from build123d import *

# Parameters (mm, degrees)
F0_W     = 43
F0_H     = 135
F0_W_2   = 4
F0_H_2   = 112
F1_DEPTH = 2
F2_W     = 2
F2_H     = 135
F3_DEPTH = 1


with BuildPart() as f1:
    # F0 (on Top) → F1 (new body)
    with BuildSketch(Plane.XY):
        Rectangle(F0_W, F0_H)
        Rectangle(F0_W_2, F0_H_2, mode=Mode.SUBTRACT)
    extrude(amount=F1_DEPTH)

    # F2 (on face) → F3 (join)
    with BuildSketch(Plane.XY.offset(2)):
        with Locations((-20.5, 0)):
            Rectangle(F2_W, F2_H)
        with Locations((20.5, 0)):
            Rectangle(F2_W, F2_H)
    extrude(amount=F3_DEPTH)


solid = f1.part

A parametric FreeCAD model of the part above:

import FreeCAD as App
import Part
import Sketcher
Q = App.Units.Quantity


def add_polygon(sketch, points):
    """Adds a closed chain of lines whose ends are joined by coincident constraints."""
    first, n = sketch.GeometryCount, len(points)
    for a, b in zip(points, points[1:] + points[:1]):
        sketch.addGeometry(Part.LineSegment(App.Vector(*a, 0), App.Vector(*b, 0)), False)
    for i in range(n):
        sketch.addConstraint(Sketcher.Constraint("Coincident", first + i, 2, first + (i + 1) % n, 1))

doc = App.newDocument("Part")
body = doc.addObject("PartDesign::Body", "Body")

# Sketch on XY plane
sketch1 = body.newObject("Sketcher::SketchObject", "Sketch")
sketch1.AttachmentSupport = (doc.getObject("XY_Plane"), [""])
sketch1.MapMode = "FlatFace"
add_polygon(sketch1, [(-21.5, 67.5), (-21.5, -67.5), (21.5, -67.5), (21.5, 67.5)])  # lines 0-3
add_polygon(sketch1, [(2, -56), (-2, -56), (-2, 56), (2, 56)])  # lines 4-7
sketch1.addConstraint([
    Sketcher.Constraint("Vertical", 0),
    Sketcher.Constraint("Horizontal", 1),
    Sketcher.Constraint("Vertical", 2),
    Sketcher.Constraint("Horizontal", 3),
    Sketcher.Constraint("Horizontal", 4),
    Sketcher.Constraint("Vertical", 5),
    Sketcher.Constraint("Horizontal", 6),
    Sketcher.Constraint("Vertical", 7),
    Sketcher.Constraint("Symmetric", 0, 2, 2, 2, -1, 1),
    Sketcher.Constraint("Symmetric", 4, 2, 6, 2, -1, 1),
    Sketcher.Constraint("DistanceX", 1, 1, 1, 2, Q("43 mm")),
    Sketcher.Constraint("DistanceX", 4, 2, 4, 1, Q("4 mm")),
    Sketcher.Constraint("DistanceY", 0, 2, 0, 1, Q("135 mm")),
    Sketcher.Constraint("DistanceY", 5, 1, 5, 2, Q("112 mm")),
])
pad1 = body.newObject("PartDesign::Pad", "Pad")
pad1.Profile = sketch1
pad1.Length = 2

# Sketch on XY plane
sketch2 = body.newObject("Sketcher::SketchObject", "Sketch001")
sketch2.AttachmentSupport = (doc.getObject("XY_Plane"), [""])
sketch2.MapMode = "FlatFace"
sketch2.AttachmentOffset = App.Placement(App.Vector(0, 0, 2), App.Rotation())
add_polygon(sketch2, [(-21.5, 67.5), (-21.5, -67.5), (-19.5, -67.5), (-19.5, 67.5)])  # lines 0-3
add_polygon(sketch2, [(19.5, 67.5), (19.5, -67.5), (21.5, -67.5), (21.5, 67.5)])  # lines 4-7
sketch2.addConstraint([
    Sketcher.Constraint("Vertical", 0),
    Sketcher.Constraint("Horizontal", 1),
    Sketcher.Constraint("Vertical", 2),
    Sketcher.Constraint("Horizontal", 3),
    Sketcher.Constraint("Vertical", 4),
    Sketcher.Constraint("Horizontal", 5),
    Sketcher.Constraint("Vertical", 6),
    Sketcher.Constraint("Horizontal", 7),
    Sketcher.Constraint("Symmetric", 2, 2, 4, 2, -1, 1),
    Sketcher.Constraint("Symmetric", 0, 2, 6, 2, -1, 1),
    Sketcher.Constraint("Horizontal", 1, 2, 4, 2),
    Sketcher.Constraint("DistanceX", 1, 1, 1, 2, Q("2 mm")),
    Sketcher.Constraint("DistanceY", 0, 2, 0, 1, Q("135 mm")),
    Sketcher.Constraint("DistanceX", 1, 2, 4, 2, Q("39 mm")),
])
pad2 = body.newObject("PartDesign::Pad", "Pad001")
pad2.Profile = sketch2
pad2.Length = 1

doc.recompute()
